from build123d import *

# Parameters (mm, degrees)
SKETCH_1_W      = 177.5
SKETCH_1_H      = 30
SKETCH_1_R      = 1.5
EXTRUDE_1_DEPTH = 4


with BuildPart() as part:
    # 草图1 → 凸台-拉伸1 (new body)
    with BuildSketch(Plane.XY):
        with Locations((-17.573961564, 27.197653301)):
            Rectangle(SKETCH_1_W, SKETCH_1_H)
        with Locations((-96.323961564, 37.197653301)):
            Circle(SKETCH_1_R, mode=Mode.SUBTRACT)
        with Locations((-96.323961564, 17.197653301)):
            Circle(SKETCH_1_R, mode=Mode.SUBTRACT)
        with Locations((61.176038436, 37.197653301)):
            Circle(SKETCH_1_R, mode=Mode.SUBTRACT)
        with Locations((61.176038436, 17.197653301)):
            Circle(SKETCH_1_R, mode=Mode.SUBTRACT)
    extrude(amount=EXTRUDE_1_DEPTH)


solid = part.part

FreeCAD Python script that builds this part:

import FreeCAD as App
import Part
import Sketcher

V = App.Vector
Q = App.Units.Quantity


def add_polygon(sketch, points):
    """Adds a closed chain of lines whose ends are joined by coincident constraints."""
    first, n = sketch.GeometryCount, len(points)
    for a, b in zip(points, points[1:] + points[:1]):
        sketch.addGeometry(Part.LineSegment(App.Vector(*a, 0), App.Vector(*b, 0)), False)
    for i in range(n):
        sketch.addConstraint(Sketcher.Constraint("Coincident", first + i, 2, first + (i + 1) % n, 1))

doc = App.newDocument("Part")
body = doc.addObject("PartDesign::Body", "Body")

sketch1 = body.newObject("Sketcher::SketchObject", "Sketch")
sketch1.AttachmentSupport = (doc.getObject("XY_Plane"), [""])
sketch1.MapMode = "FlatFace"
add_polygon(sketch1, [(-106.3, 42.2), (-106.3, 12.2), (71.2, 12.2), (71.2, 42.2)])
sketch1.addGeometry(Part.Circle(V(-96.3, 17.2, 0), V(0, 0, 1), 1.5), False)
sketch1.addGeometry(Part.Circle(V(61.2, 17.2, 0), V(0, 0, 1), 1.5), False)
sketch1.addGeometry(Part.Circle(V(-96.3, 37.2, 0), V(0, 0, 1), 1.5), False)
sketch1.addGeometry(Part.Circle(V(61.2, 37.2, 0), V(0, 0, 1), 1.5), False)
sketch1.addConstraint([
    Sketcher.Constraint("Vertical", 0),
    Sketcher.Constraint("Horizontal", 1),
    Sketcher.Constraint("Vertical", 2),
    Sketcher.Constraint("Horizontal", 3),
    Sketcher.Constraint("Equal", 4, 5),
    Sketcher.Constraint("Equal", 5, 6),
    Sketcher.Constraint("Equal", 6, 7),
    Sketcher.Constraint("Horizontal", 4, 3, 5, 3),
    Sketcher.Constraint("Horizontal", 6, 3, 7, 3),
    Sketcher.Constraint("Vertical", 4, 3, 6, 3),
    Sketcher.Constraint("Vertical", 5, 3, 7, 3),
    Sketcher.Constraint("Diameter", 4, Q("3 mm")),
    Sketcher.Constraint("DistanceY", 0, 2, 0, 1, Q("30 mm")),
    Sketcher.Constraint("DistanceX", 1, 1, 1, 2, Q("177.5 mm")),
    Sketcher.Constraint("DistanceY", 4, 3, 6, 3, Q("20 mm")),
    Sketcher.Constraint("DistanceX", 0, 2, 4, 3, Q("10 mm")),
    Sketcher.Constraint("DistanceY", 0, 2, 4, 3, Q("5 mm")),
    Sketcher.Constraint("DistanceX", 5, 3, 1, 2, Q("10 mm")),
    Sketcher.Constraint("DistanceX", 4, 3, -1, 1, Q("96.323962 mm")),
    Sketcher.Constraint("DistanceY", -1, 1, 4, 3, Q("17.197653 mm")),
])
pad1 = body.newObject("PartDesign::Pad", "Pad")
pad1.Profile = sketch1
pad1.Length = 4

doc.recompute()
